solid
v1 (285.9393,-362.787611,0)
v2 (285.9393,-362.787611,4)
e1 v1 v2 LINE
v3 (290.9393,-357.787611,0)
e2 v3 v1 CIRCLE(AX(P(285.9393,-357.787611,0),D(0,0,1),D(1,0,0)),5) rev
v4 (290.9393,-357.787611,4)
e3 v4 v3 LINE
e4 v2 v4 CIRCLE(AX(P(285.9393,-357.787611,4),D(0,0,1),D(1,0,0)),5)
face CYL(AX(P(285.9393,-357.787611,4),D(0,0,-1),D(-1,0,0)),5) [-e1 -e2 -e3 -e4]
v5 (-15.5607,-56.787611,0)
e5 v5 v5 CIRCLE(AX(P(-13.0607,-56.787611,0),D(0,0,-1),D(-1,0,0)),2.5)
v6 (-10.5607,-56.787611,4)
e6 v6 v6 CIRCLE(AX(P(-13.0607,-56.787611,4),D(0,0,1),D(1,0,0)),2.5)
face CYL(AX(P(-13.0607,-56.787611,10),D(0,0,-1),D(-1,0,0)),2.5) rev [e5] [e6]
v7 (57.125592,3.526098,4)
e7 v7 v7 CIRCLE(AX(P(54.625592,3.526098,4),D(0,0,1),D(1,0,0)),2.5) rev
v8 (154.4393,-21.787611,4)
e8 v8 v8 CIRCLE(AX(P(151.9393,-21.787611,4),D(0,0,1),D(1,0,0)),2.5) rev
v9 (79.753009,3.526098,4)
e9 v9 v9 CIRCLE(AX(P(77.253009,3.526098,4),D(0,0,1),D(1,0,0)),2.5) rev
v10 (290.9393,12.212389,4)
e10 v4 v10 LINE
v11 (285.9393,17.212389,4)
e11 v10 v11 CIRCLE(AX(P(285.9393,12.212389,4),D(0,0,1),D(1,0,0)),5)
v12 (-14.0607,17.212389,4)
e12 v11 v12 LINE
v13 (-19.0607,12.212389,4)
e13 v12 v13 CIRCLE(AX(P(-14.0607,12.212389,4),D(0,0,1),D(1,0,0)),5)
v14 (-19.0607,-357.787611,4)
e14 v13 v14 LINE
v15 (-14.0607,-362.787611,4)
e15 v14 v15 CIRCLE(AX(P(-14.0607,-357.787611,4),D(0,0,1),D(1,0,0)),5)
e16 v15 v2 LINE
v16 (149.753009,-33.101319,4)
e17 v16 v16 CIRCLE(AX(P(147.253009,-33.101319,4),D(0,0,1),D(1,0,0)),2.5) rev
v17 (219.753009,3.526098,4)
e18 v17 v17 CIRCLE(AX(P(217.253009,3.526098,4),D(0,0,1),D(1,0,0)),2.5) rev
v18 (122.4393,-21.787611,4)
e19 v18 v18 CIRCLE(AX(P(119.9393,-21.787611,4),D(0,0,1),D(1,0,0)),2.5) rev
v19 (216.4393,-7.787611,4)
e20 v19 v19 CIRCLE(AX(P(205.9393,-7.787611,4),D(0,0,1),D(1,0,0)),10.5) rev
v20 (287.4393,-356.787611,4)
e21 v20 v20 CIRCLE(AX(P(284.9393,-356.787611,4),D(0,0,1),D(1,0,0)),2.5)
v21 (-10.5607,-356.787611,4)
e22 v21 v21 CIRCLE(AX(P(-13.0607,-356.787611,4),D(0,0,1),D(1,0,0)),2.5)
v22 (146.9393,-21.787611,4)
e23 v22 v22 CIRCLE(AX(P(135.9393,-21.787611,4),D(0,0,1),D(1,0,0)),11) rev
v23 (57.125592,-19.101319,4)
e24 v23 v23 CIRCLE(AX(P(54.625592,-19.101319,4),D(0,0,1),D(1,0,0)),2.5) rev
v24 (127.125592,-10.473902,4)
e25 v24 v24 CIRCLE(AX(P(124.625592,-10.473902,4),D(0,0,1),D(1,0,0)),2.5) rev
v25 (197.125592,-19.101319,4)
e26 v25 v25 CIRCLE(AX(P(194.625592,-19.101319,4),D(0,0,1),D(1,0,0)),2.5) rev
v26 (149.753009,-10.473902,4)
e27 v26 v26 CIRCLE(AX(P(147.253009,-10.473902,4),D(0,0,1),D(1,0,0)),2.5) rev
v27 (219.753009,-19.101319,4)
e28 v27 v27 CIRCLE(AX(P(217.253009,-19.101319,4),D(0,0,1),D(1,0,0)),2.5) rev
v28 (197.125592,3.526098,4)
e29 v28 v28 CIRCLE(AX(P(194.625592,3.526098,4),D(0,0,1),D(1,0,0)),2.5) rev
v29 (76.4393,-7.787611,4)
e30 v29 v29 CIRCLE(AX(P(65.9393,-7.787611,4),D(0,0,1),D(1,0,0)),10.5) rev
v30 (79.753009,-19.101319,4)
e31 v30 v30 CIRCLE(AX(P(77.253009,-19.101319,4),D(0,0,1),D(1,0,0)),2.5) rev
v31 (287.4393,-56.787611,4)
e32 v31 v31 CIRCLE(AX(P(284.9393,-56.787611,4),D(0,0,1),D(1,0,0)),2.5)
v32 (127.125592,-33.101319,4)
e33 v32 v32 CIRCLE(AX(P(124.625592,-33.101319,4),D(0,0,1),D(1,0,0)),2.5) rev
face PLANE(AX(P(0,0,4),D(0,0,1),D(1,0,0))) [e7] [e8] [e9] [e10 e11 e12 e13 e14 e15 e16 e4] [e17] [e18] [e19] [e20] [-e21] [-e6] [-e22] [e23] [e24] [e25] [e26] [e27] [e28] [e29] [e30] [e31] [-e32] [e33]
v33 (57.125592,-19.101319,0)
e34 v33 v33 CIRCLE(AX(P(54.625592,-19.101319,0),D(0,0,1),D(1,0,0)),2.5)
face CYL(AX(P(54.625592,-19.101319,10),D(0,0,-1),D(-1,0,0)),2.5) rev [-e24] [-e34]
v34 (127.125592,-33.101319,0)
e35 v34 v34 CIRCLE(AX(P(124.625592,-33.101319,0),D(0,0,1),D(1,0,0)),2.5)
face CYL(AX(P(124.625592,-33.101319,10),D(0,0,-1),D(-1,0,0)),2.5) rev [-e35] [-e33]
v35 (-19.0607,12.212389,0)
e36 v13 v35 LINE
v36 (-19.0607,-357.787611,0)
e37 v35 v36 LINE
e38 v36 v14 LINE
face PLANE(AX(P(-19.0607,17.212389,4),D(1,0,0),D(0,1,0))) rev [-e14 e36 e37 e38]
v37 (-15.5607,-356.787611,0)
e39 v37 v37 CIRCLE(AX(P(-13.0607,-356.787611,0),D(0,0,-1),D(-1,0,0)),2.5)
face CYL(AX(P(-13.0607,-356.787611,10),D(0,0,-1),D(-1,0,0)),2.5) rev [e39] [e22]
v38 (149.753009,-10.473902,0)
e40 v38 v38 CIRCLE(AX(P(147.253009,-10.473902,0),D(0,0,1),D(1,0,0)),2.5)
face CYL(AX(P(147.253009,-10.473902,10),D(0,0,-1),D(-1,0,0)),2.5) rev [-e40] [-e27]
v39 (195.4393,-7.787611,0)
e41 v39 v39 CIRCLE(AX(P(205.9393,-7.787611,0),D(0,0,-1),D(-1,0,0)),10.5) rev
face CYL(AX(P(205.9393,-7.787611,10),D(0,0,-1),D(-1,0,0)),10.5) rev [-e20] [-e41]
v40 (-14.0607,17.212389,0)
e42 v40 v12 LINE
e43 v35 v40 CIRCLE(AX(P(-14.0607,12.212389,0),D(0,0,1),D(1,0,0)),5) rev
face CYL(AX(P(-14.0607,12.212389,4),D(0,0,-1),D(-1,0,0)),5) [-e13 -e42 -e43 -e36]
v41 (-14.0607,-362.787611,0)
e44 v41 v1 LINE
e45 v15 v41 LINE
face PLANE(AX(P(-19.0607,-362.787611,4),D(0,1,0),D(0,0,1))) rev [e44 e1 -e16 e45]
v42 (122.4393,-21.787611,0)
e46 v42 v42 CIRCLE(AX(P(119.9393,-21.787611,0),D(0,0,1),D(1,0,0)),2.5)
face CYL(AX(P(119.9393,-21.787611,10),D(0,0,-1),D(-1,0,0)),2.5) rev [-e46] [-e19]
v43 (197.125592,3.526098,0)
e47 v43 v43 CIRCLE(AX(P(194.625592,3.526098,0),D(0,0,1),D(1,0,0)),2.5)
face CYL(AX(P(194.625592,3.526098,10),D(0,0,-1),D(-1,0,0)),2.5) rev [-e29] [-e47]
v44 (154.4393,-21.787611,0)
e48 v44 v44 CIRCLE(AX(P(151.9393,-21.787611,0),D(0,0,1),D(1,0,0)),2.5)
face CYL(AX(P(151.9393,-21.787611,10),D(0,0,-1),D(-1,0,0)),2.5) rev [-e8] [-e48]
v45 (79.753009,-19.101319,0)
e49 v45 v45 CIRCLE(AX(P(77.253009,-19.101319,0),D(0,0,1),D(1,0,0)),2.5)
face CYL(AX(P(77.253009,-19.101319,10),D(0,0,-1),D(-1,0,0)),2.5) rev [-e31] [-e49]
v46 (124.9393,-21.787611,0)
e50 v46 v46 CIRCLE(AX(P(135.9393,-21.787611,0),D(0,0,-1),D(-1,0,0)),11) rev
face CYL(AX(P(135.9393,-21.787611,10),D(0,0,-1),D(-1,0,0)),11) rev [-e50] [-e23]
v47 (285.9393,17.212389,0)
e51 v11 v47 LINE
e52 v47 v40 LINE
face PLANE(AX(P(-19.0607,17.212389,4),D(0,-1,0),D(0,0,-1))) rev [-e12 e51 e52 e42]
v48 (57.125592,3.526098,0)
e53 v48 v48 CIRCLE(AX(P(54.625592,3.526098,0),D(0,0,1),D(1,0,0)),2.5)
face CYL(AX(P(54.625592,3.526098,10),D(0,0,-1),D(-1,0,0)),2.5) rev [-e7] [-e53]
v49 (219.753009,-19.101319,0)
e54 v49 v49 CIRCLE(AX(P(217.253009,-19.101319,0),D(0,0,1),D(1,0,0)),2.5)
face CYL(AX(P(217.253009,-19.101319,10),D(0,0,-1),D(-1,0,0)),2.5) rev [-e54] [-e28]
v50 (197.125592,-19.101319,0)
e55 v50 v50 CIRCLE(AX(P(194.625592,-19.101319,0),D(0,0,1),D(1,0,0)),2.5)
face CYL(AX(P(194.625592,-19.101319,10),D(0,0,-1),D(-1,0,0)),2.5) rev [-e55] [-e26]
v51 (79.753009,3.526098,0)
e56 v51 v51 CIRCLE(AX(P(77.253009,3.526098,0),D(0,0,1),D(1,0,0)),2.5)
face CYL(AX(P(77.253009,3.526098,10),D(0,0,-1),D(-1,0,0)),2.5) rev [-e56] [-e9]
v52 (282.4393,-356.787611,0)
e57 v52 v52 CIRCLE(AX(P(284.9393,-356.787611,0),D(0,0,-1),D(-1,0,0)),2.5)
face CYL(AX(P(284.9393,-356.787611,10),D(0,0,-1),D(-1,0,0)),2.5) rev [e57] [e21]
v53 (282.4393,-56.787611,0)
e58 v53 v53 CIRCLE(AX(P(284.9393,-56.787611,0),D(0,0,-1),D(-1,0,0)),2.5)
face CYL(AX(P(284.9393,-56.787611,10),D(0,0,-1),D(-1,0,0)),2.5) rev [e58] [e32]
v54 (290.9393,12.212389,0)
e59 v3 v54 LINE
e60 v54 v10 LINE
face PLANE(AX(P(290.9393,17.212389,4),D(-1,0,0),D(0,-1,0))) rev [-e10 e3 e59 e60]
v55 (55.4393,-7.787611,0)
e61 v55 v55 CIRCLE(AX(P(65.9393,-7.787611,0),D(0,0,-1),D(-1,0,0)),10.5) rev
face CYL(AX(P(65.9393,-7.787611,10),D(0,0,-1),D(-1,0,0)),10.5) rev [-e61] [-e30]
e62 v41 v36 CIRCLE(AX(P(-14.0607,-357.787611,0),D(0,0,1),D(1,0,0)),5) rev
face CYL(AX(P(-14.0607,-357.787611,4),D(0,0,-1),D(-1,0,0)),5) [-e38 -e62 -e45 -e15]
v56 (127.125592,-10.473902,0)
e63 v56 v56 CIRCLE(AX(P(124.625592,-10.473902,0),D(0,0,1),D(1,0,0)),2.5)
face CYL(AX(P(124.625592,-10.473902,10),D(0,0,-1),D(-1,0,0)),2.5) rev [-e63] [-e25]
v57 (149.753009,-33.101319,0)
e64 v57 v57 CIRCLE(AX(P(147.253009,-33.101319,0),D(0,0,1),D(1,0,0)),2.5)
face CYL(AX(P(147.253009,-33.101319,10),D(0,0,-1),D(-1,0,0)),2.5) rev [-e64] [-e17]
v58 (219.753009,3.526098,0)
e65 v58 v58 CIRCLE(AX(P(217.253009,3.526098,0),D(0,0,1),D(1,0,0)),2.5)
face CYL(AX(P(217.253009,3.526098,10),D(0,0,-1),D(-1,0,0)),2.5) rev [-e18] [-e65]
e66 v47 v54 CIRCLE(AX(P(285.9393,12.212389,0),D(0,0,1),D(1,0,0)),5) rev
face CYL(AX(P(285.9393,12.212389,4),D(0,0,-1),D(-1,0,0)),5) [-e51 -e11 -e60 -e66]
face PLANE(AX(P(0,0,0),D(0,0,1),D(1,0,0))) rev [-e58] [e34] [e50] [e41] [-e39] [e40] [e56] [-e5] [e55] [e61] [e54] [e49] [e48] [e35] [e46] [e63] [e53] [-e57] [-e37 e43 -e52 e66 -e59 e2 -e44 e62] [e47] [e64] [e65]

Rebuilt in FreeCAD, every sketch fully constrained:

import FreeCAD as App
import Part
import Sketcher

V = App.Vector
Q = App.Units.Quantity


def edges_at(feature, points):
    """Names of the edges that pass closest to the given points."""
    edges = feature.Shape.Edges
    near = lambda p: min(range(len(edges)), key=lambda i: edges[i].distToShape(Part.Vertex(*p))[0])
    return sorted({f"Edge{near(p) + 1}" for p in points})

doc = App.newDocument("Part")
body = doc.addObject("PartDesign::Body", "Body")

sketch1 = body.newObject("Sketcher::SketchObject", "Sketch")
sketch1.AttachmentSupport = (doc.getObject("XY_Plane"), [""])
sketch1.MapMode = "FlatFace"
sketch1.addGeometry(Part.LineSegment(V(-19, 17, 0), V(-19, -363, 0)), False)
sketch1.addGeometry(Part.LineSegment(V(-19, -363, 0), V(291, -363, 0)), False)
sketch1.addGeometry(Part.LineSegment(V(291, -363, 0), V(291, 17, 0)), False)
sketch1.addGeometry(Part.LineSegment(V(291, 17, 0), V(-19, 17, 0)), False)
sketch1.addConstraint(Sketcher.Constraint("Coincident", 0, 2, 1, 1))
sketch1.addConstraint(Sketcher.Constraint("Coincident", 1, 2, 2, 1))
sketch1.addConstraint(Sketcher.Constraint("Coincident", 2, 2, 3, 1))
sketch1.addConstraint(Sketcher.Constraint("Coincident", 3, 2, 0, 1))
sketch1.addConstraint(Sketcher.Constraint("Vertical", 0))
sketch1.addConstraint(Sketcher.Constraint("Horizontal", 1))
sketch1.addConstraint(Sketcher.Constraint("Vertical", 2))
sketch1.addConstraint(Sketcher.Constraint("Horizontal", 3))
sketch1.addConstraint(Sketcher.Constraint("DistanceX", 1, 1, 1, 2, Q("310 mm")))
sketch1.addConstraint(Sketcher.Constraint("DistanceY", 0, 2, 0, 1, Q("380 mm")))
sketch1.addConstraint(Sketcher.Constraint("DistanceX", 0, 2, -1, 1, Q("19.0607 mm")))
sketch1.addConstraint(Sketcher.Constraint("DistanceY", 0, 2, -1, 1, Q("362.787611 mm")))
pad1 = body.newObject("PartDesign::Pad", "Pad")
pad1.Profile = sketch1
pad1.Length = 4
doc.recompute()

fillet = body.newObject("PartDesign::Fillet", "Fillet")
fillet.Base = (pad1, edges_at(pad1, [
    (-19.061, 17.212, 2),
    (290.939, 17.212, 2),
    (290.939, -362.788, 2),
    (-19.061, -362.788, 2),
]))
fillet.Radius = 5

sketch2 = body.newObject("Sketcher::SketchObject", "Sketch001")
sketch2.AttachmentSupport = (doc.getObject("XY_Plane"), [""])
sketch2.MapMode = "FlatFace"
sketch2.addGeometry(Part.Circle(V(205.9, -7.8, 0), V(0, 0, 1), 10.5), False)
sketch2.addGeometry(Part.Circle(V(135.9, -21.8, 0), V(0, 0, 1), 11), False)
sketch2.addGeometry(Part.Circle(V(65.9, -7.8, 0), V(0, 0, 1), 10.5), False)
sketch2.addGeometry(Part.Circle(V(217.3, 3.5, 0), V(0, 0, 1), 2.5), False)
sketch2.addGeometry(Part.Circle(V(194.6, 3.5, 0), V(0, 0, 1), 2.5), False)
sketch2.addGeometry(Part.Circle(V(194.6, -19.1, 0), V(0, 0, 1), 2.5), False)
sketch2.addGeometry(Part.Circle(V(217.3, -19.1, 0), V(0, 0, 1), 2.5), False)
sketch2.addGeometry(Part.Circle(V(77.3, 3.5, 0), V(0, 0, 1), 2.5), False)
sketch2.addGeometry(Part.Circle(V(54.6, 3.5, 0), V(0, 0, 1), 2.5), False)
sketch2.addGeometry(Part.Circle(V(54.6, -19.1, 0), V(0, 0, 1), 2.5), False)
sketch2.addGeometry(Part.Circle(V(77.3, -19.1, 0), V(0, 0, 1), 2.5), False)
sketch2.addGeometry(Part.Circle(V(119.9, -21.8, 0), V(0, 0, 1), 2.5), False)
sketch2.addGeometry(Part.Circle(V(124.6, -10.5, 0), V(0, 0, 1), 2.5), False)
sketch2.addGeometry(Part.Circle(V(124.6, -33.1, 0), V(0, 0, 1), 2.5), False)
sketch2.addGeometry(Part.Circle(V(147.3, -33.1, 0), V(0, 0, 1), 2.5), False)
sketch2.addGeometry(Part.Circle(V(151.9, -21.8, 0), V(0, 0, 1), 2.5), False)
sketch2.addGeometry(Part.Circle(V(147.3, -10.5, 0), V(0, 0, 1), 2.5), False)
sketch2.addGeometry(Part.Circle(V(-13.1, -56.8, 0), V(0, 0, 1), 2.5), False)
sketch2.addGeometry(Part.Circle(V(-13.1, -356.8, 0), V(0, 0, 1), 2.5), False)
sketch2.addGeometry(Part.Circle(V(284.9, -356.8, 0), V(0, 0, 1), 2.5), False)
sketch2.addGeometry(Part.Circle(V(284.9, -56.8, 0), V(0, 0, 1), 2.5), False)
sketch2.addConstraint(Sketcher.Constraint("Equal", 0, 2))
sketch2.addConstraint(Sketcher.Constraint("Equal", 3, 4))
sketch2.addConstraint(Sketcher.Constraint("Equal", 4, 5))
sketch2.addConstraint(Sketcher.Constraint("Equal", 5, 6))
sketch2.addConstraint(Sketcher.Constraint("Equal", 6, 7))
sketch2.addConstraint(Sketcher.Constraint("Equal", 7, 8))
sketch2.addConstraint(Sketcher.Constraint("Equal", 8, 9))
sketch2.addConstraint(Sketcher.Constraint("Equal", 9, 10))
sketch2.addConstraint(Sketcher.Constraint("Equal", 10, 11))
sketch2.addConstraint(Sketcher.Constraint("Equal", 11, 12))
sketch2.addConstraint(Sketcher.Constraint("Equal", 12, 13))
sketch2.addConstraint(Sketcher.Constraint("Equal", 13, 14))
sketch2.addConstraint(Sketcher.Constraint("Equal", 14, 15))
sketch2.addConstraint(Sketcher.Constraint("Equal", 15, 16))
sketch2.addConstraint(Sketcher.Constraint("Equal", 16, 17))
sketch2.addConstraint(Sketcher.Constraint("Equal", 17, 18))
sketch2.addConstraint(Sketcher.Constraint("Equal", 18, 19))
sketch2.addConstraint(Sketcher.Constraint("Equal", 19, 20))
sketch2.addConstraint(Sketcher.Constraint("Horizontal", 0, 3, 2, 3))
sketch2.addConstraint(Sketcher.Constraint("Horizontal", 3, 3, 4, 3))
sketch2.addConstraint(Sketcher.Constraint("Horizontal", 5, 3, 6, 3))
sketch2.addConstraint(Sketcher.Constraint("Horizontal", 4, 3, 7, 3))
sketch2.addConstraint(Sketcher.Constraint("Horizontal", 7, 3, 8, 3))
sketch2.addConstraint(Sketcher.Constraint("Horizontal", 6, 3, 9, 3))
sketch2.addConstraint(Sketcher.Constraint("Horizontal", 9, 3, 10, 3))
sketch2.addConstraint(Sketcher.Constraint("Horizontal", 1, 3, 11, 3))
sketch2.addConstraint(Sketcher.Constraint("Horizontal", 13, 3, 14, 3))
sketch2.addConstraint(Sketcher.Constraint("Horizontal", 11, 3, 15, 3))
sketch2.addConstraint(Sketcher.Constraint("Horizontal", 12, 3, 16, 3))
sketch2.addConstraint(Sketcher.Constraint("Horizontal", 18, 3, 19, 3))
sketch2.addConstraint(Sketcher.Constraint("Horizontal", 17, 3, 20, 3))
sketch2.addConstraint(Sketcher.Constraint("Vertical", 4, 3, 5, 3))
sketch2.addConstraint(Sketcher.Constraint("Vertical", 3, 3, 6, 3))
sketch2.addConstraint(Sketcher.Constraint("Vertical", 8, 3, 9, 3))
sketch2.addConstraint(Sketcher.Constraint("Vertical", 7, 3, 10, 3))
sketch2.addConstraint(Sketcher.Constraint("Vertical", 12, 3, 13, 3))
sketch2.addConstraint(Sketcher.Constraint("Vertical", 14, 3, 16, 3))
sketch2.addConstraint(Sketcher.Constraint("Vertical", 17, 3, 18, 3))
sketch2.addConstraint(Sketcher.Constraint("Vertical", 19, 3, 20, 3))
sketch2.addConstraint(Sketcher.Constraint("Diameter", 0, Q("21 mm")))
sketch2.addConstraint(Sketcher.Constraint("Diameter", 1, Q("22 mm")))
sketch2.addConstraint(Sketcher.Constraint("Diameter", 3, Q("5 mm")))
sketch2.addConstraint(Sketcher.Constraint("DistanceX", 1, 3, 0, 3, Q("70 mm")))
sketch2.addConstraint(Sketcher.Constraint("DistanceY", 1, 3, 0, 3, Q("14 mm")))
sketch2.addConstraint(Sketcher.Constraint("DistanceX", 2, 3, 1, 3, Q("70 mm")))
sketch2.addConstraint(Sketcher.Constraint("DistanceX", 8, 3, 4, 3, Q("140 mm")))
sketch2.addConstraint(Sketcher.Constraint("DistanceX", 11, 3, 1, 3, Q("16 mm")))
sketch2.addConstraint(Sketcher.Constraint("DistanceY", 12, 3, 7, 3, Q("14 mm")))
sketch2.addConstraint(Sketcher.Constraint("DistanceY", 13, 3, 10, 3, Q("14 mm")))
sketch2.addConstraint(Sketcher.Constraint("DistanceX", 1, 3, 15, 3, Q("16 mm")))
sketch2.addConstraint(Sketcher.Constraint("DistanceX", 17, 3, 2, 3, Q("79 mm")))
sketch2.addConstraint(Sketcher.Constraint("DistanceY", 17, 3, 2, 3, Q("49 mm")))
sketch2.addConstraint(Sketcher.Constraint("DistanceY", 18, 3, 17, 3, Q("300 mm")))
sketch2.addConstraint(Sketcher.Constraint("DistanceX", 18, 3, 19, 3, Q("298 mm")))
sketch2.addConstraint(Sketcher.Constraint("DistanceX", -1, 1, 0, 3, Q("205.9393 mm")))
sketch2.addConstraint(Sketcher.Constraint("DistanceY", 0, 3, -1, 1, Q("7.787611 mm")))
sketch2.addConstraint(Sketcher.Constraint("DistanceX", -1, 1, 3, 3, Q("217.253009 mm")))
sketch2.addConstraint(Sketcher.Constraint("DistanceX", -1, 1, 4, 3, Q("194.625592 mm")))
sketch2.addConstraint(Sketcher.Constraint("DistanceY", 5, 3, -1, 1, Q("19.101319 mm")))
sketch2.addConstraint(Sketcher.Constraint("DistanceX", -1, 1, 7, 3, Q("77.253009 mm")))
sketch2.addConstraint(Sketcher.Constraint("DistanceX", -1, 1, 12, 3, Q("124.625592 mm")))
sketch2.addConstraint(Sketcher.Constraint("DistanceX", -1, 1, 14, 3, Q("147.253009 mm")))
sketch2.addConstraint(Sketcher.Constraint("DistanceY", 0, 3, 3, 3, Q("11.313708 mm")))
pocket1 = body.newObject("PartDesign::Pocket", "Pocket")
pocket1.Profile = sketch2
pocket1.Length = 10
pocket1.Reversed = True

doc.recompute()
